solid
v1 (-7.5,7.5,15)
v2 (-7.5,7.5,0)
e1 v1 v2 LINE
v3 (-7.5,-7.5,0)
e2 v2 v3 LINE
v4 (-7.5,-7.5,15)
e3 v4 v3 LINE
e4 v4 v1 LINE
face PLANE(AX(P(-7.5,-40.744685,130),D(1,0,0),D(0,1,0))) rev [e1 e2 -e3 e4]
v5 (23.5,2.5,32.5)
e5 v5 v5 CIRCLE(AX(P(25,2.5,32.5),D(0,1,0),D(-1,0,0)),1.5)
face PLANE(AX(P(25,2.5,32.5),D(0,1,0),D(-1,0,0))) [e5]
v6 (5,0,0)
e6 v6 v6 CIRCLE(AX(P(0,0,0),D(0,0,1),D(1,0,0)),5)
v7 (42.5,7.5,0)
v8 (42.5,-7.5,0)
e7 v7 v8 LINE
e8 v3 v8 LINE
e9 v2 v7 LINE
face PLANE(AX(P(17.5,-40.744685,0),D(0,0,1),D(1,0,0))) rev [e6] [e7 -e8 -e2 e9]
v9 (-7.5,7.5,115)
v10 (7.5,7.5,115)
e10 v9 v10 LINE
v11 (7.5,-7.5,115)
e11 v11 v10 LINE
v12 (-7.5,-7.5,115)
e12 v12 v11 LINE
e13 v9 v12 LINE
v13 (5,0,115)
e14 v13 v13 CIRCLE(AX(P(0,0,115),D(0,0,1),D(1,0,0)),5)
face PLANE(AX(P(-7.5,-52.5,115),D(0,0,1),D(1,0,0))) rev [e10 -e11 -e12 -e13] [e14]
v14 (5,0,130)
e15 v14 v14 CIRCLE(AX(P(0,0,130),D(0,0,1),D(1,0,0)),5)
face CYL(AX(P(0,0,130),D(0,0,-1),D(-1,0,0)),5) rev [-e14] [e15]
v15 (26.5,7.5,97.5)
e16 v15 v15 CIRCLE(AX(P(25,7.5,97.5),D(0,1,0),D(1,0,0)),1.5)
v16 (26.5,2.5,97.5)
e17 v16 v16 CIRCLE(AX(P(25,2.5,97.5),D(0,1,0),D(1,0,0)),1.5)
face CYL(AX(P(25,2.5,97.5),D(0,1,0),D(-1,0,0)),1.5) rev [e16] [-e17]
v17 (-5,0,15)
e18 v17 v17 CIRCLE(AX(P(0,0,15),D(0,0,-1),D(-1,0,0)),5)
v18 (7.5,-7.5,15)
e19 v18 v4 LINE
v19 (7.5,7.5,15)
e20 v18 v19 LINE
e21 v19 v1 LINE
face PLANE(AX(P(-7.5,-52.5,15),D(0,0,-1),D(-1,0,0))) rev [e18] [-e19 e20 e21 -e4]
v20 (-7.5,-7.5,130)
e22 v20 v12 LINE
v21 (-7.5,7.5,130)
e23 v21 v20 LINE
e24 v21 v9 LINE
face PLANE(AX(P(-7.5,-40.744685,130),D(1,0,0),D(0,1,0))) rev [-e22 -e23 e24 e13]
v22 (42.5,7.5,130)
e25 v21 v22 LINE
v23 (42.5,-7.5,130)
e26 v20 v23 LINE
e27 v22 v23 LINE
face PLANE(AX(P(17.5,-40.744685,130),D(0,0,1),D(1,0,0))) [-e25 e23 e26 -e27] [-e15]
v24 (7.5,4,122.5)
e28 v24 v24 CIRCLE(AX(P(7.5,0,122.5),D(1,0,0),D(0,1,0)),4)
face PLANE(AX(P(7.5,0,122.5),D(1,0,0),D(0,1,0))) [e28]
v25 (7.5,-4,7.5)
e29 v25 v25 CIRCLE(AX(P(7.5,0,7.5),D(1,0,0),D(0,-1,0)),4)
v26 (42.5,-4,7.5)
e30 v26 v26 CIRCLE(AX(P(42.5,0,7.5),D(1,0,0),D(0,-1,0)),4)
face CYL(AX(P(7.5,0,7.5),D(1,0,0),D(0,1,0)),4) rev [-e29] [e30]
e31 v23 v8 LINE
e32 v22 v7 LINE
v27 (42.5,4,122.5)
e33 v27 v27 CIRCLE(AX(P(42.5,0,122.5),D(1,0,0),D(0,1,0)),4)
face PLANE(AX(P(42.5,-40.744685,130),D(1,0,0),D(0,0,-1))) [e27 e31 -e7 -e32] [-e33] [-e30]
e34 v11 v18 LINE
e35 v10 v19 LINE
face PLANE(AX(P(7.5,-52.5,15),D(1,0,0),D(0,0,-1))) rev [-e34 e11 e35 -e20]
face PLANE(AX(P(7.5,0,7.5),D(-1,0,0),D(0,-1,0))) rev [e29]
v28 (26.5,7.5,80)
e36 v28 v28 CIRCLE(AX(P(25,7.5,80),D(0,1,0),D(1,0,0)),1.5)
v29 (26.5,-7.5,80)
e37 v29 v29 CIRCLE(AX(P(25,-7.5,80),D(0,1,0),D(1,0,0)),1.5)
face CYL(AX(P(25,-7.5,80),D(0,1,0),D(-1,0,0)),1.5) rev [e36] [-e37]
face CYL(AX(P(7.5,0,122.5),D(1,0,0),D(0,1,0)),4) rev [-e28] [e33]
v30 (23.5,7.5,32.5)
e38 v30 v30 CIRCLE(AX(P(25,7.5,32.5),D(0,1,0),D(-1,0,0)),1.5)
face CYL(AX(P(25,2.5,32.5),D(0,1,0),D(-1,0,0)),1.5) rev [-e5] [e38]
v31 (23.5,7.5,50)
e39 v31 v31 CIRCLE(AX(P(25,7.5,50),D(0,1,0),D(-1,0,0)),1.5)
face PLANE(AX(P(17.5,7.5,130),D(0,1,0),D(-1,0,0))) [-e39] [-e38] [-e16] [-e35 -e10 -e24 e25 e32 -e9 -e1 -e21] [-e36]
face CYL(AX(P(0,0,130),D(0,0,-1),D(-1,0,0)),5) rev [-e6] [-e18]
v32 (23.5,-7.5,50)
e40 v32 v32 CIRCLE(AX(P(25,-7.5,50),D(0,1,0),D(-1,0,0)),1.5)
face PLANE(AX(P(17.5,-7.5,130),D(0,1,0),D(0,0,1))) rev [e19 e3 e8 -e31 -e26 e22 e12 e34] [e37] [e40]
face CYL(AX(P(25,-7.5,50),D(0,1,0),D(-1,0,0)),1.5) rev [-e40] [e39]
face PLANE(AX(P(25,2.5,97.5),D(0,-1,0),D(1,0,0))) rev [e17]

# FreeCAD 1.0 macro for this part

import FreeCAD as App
import Part
import Sketcher
Q = App.Units.Quantity

doc = App.newDocument("Part")
params = doc.addObject("Spreadsheet::Sheet", "Params")
for row, (alias, value) in enumerate([
    ("sketch1_diameter", "10 mm"),
    ("sketch1_width", "50 mm"),
    ("sketch1_height", "15 mm"),
    ("pad1_length", "130 mm"),
    ("sketch2_width", "15 mm"),
    ("sketch2_height", "100 mm"),
    ("pocket1_length", "60 mm"),
    ("sketch3_diameter", "8 mm"),
    ("pocket2_length", "35 mm"),
    ("sketch4_diameter", "3 mm"),
    ("pocket3_length", "5 mm"),
    ("sketch5_diameter", "3 mm"),
    ("pocket4_length", "15 mm"),
], start=1):
    params.set(f"A{row}", alias)
    params.set(f"B{row}", "=" + value)
    params.setAlias(f"B{row}", alias)

body = doc.addObject("PartDesign::Body", "Body")

sketch1 = doc.addObject("Sketcher::SketchObject", "Sketch")
body.addObject(sketch1)
sketch1.AttachmentSupport = (doc.XY_Plane, [""])
sketch1.MapMode = "FlatFace"
sketch1.addGeometry(Part.LineSegment(App.Vector(-8, 8, 0), App.Vector(-8, -8, 0)), False)
sketch1.addGeometry(Part.LineSegment(App.Vector(-8, -8, 0), App.Vector(42, -8, 0)), False)
sketch1.addGeometry(Part.LineSegment(App.Vector(42, -8, 0), App.Vector(42, 8, 0)), False)
sketch1.addGeometry(Part.LineSegment(App.Vector(42, 8, 0), App.Vector(-8, 8, 0)), False)
sketch1.addGeometry(Part.Circle(App.Vector(0, 0, 0), App.Vector(0, 0, 1), 5), False)
sketch1.addConstraint(Sketcher.Constraint("Coincident", 0, 2, 1, 1))
sketch1.addConstraint(Sketcher.Constraint("Coincident", 1, 2, 2, 1))
sketch1.addConstraint(Sketcher.Constraint("Coincident", 2, 2, 3, 1))
sketch1.addConstraint(Sketcher.Constraint("Coincident", 3, 2, 0, 1))
sketch1.addConstraint(Sketcher.Constraint("Vertical", 0))
sketch1.addConstraint(Sketcher.Constraint("Horizontal", 1))
sketch1.addConstraint(Sketcher.Constraint("Vertical", 2))
sketch1.addConstraint(Sketcher.Constraint("Horizontal", 3))
sketch1.addConstraint(Sketcher.Constraint("Coincident", 4, 3, -1, 1))
sketch1.addConstraint(Sketcher.Constraint("Diameter", 4, Q("10 mm")))
sketch1.addConstraint(Sketcher.Constraint("DistanceX", 1, 1, 1, 2, Q("50 mm")))
sketch1.addConstraint(Sketcher.Constraint("DistanceY", 0, 2, 0, 1, Q("15 mm")))
sketch1.addConstraint(Sketcher.Constraint("DistanceX", 0, 2, -1, 1, Q("7.5 mm")))
sketch1.addConstraint(Sketcher.Constraint("DistanceY", 0, 2, -1, 1, Q("7.5 mm")))
sketch1.setExpression("Constraints[9]", "Params.sketch1_diameter")
sketch1.setExpression("Constraints[10]", "Params.sketch1_width")
sketch1.setExpression("Constraints[11]", "Params.sketch1_height")
pad1 = doc.addObject("PartDesign::Pad", "Pad")
body.addObject(pad1)
pad1.Profile = sketch1
pad1.setExpression("Length", "Params.pad1_length")

sketch2 = doc.addObject("Sketcher::SketchObject", "Sketch001")
body.addObject(sketch2)
sketch2.AttachmentSupport = (doc.XZ_Plane, [""])
sketch2.MapMode = "FlatFace"
sketch2.AttachmentOffset = App.Placement(App.Vector(0, 0, -7.5), App.Rotation())
sketch2.addGeometry(Part.LineSegment(App.Vector(-8, 15, 0), App.Vector(-8, 115, 0)), False)
sketch2.addGeometry(Part.LineSegment(App.Vector(-8, 115, 0), App.Vector(8, 115, 0)), False)
sketch2.addGeometry(Part.LineSegment(App.Vector(8, 115, 0), App.Vector(8, 15, 0)), False)
sketch2.addGeometry(Part.LineSegment(App.Vector(8, 15, 0), App.Vector(-8, 15, 0)), False)
sketch2.addConstraint(Sketcher.Constraint("Coincident", 0, 2, 1, 1))
sketch2.addConstraint(Sketcher.Constraint("Coincident", 1, 2, 2, 1))
sketch2.addConstraint(Sketcher.Constraint("Coincident", 2, 2, 3, 1))
sketch2.addConstraint(Sketcher.Constraint("Coincident", 3, 2, 0, 1))
sketch2.addConstraint(Sketcher.Constraint("Vertical", 0))
sketch2.addConstraint(Sketcher.Constraint("Horizontal", 1))
sketch2.addConstraint(Sketcher.Constraint("Vertical", 2))
sketch2.addConstraint(Sketcher.Constraint("Horizontal", 3))
sketch2.addConstraint(Sketcher.Constraint("DistanceX", 1, 1, 1, 2, Q("15 mm")))
sketch2.addConstraint(Sketcher.Constraint("DistanceY", 0, 1, 0, 2, Q("100 mm")))
sketch2.addConstraint(Sketcher.Constraint("DistanceY", -1, 1, 0, 2, Q("115 mm")))
sketch2.addConstraint(Sketcher.Constraint("DistanceX", 0, 2, -1, 1, Q("7.5 mm")))
sketch2.setExpression("Constraints[8]", "Params.sketch2_width")
sketch2.setExpression("Constraints[9]", "Params.sketch2_height")
pocket1 = doc.addObject("PartDesign::Pocket", "Pocket")
body.addObject(pocket1)
pocket1.Profile = sketch2
pocket1.setExpression("Length", "Params.pocket1_length")
pocket1.Reversed = True

sketch3 = doc.addObject("Sketcher::SketchObject", "Sketch002")
body.addObject(sketch3)
sketch3.AttachmentSupport = (doc.YZ_Plane, [""])
sketch3.MapMode = "FlatFace"
sketch3.AttachmentOffset = App.Placement(App.Vector(0, 0, 42.5), App.Rotation())
sketch3.addGeometry(Part.Circle(App.Vector(0, 122.5, 0), App.Vector(0, 0, 1), 4), False)
sketch3.addGeometry(Part.Circle(App.Vector(0, 7.5, 0), App.Vector(0, 0, 1), 4), False)
sketch3.addConstraint(Sketcher.Constraint("Equal", 0, 1))
sketch3.addConstraint(Sketcher.Constraint("PointOnObject", 0, 3, -2))
sketch3.addConstraint(Sketcher.Constraint("PointOnObject", 1, 3, -2))
sketch3.addConstraint(Sketcher.Constraint("Diameter", 0, Q("8 mm")))
sketch3.addConstraint(Sketcher.Constraint("DistanceY", 1, 3, 0, 3, Q("115 mm")))
sketch3.addConstraint(Sketcher.Constraint("DistanceY", -1, 1, 0, 3, Q("122.5 mm")))
sketch3.setExpression("Constraints[3]", "Params.sketch3_diameter")
pocket2 = doc.addObject("PartDesign::Pocket", "Pocket001")
body.addObject(pocket2)
pocket2.Profile = sketch3
pocket2.setExpression("Length", "Params.pocket2_length")

sketch4 = doc.addObject("Sketcher::SketchObject", "Sketch003")
body.addObject(sketch4)
sketch4.AttachmentSupport = (doc.XZ_Plane, [""])
sketch4.MapMode = "FlatFace"
sketch4.AttachmentOffset = App.Placement(App.Vector(0, 0, -7.5), App.Rotation())
sketch4.addGeometry(Part.Circle(App.Vector(25, 32.5, 0), App.Vector(0, 0, 1), 1.5), False)
sketch4.addGeometry(Part.Circle(App.Vector(25, 97.5, 0), App.Vector(0, 0, 1), 1.5), False)
sketch4.addConstraint(Sketcher.Constraint("Equal", 0, 1))
sketch4.addConstraint(Sketcher.Constraint("Vertical", 0, 3, 1, 3))
sketch4.addConstraint(Sketcher.Constraint("Diameter", 0, Q("3 mm")))
sketch4.addConstraint(Sketcher.Constraint("DistanceX", -1, 1, 0, 3, Q("25 mm")))
sketch4.addConstraint(Sketcher.Constraint("DistanceY", 0, 3, 1, 3, Q("65 mm")))
sketch4.addConstraint(Sketcher.Constraint("DistanceY", -1, 1, 0, 3, Q("32.5 mm")))
sketch4.setExpression("Constraints[2]", "Params.sketch4_diameter")
pocket3 = doc.addObject("PartDesign::Pocket", "Pocket002")
body.addObject(pocket3)
pocket3.Profile = sketch4
pocket3.setExpression("Length", "Params.pocket3_length")
pocket3.Reversed = True

sketch5 = doc.addObject("Sketcher::SketchObject", "Sketch004")
body.addObject(sketch5)
sketch5.AttachmentSupport = (doc.XZ_Plane, [""])
sketch5.MapMode = "FlatFace"
sketch5.AttachmentOffset = App.Placement(App.Vector(0, 0, -7.5), App.Rotation())
sketch5.addGeometry(Part.Circle(App.Vector(25, 50, 0), App.Vector(0, 0, 1), 1.5), False)
sketch5.addGeometry(Part.Circle(App.Vector(25, 80, 0), App.Vector(0, 0, 1), 1.5), False)
sketch5.addConstraint(Sketcher.Constraint("Equal", 0, 1))
sketch5.addConstraint(Sketcher.Constraint("Vertical", 0, 3, 1, 3))
sketch5.addConstraint(Sketcher.Constraint("Diameter", 0, Q("3 mm")))
sketch5.addConstraint(Sketcher.Constraint("DistanceX", -1, 1, 0, 3, Q("25 mm")))
sketch5.addConstraint(Sketcher.Constraint("DistanceY", -1, 1, 0, 3, Q("50 mm")))
sketch5.addConstraint(Sketcher.Constraint("DistanceY", -1, 1, 1, 3, Q("80 mm")))
sketch5.setExpression("Constraints[2]", "Params.sketch5_diameter")
pocket4 = doc.addObject("PartDesign::Pocket", "Pocket003")
body.addObject(pocket4)
pocket4.Profile = sketch5
pocket4.setExpression("Length", "Params.pocket4_length")
pocket4.Reversed = True

doc.recompute()
